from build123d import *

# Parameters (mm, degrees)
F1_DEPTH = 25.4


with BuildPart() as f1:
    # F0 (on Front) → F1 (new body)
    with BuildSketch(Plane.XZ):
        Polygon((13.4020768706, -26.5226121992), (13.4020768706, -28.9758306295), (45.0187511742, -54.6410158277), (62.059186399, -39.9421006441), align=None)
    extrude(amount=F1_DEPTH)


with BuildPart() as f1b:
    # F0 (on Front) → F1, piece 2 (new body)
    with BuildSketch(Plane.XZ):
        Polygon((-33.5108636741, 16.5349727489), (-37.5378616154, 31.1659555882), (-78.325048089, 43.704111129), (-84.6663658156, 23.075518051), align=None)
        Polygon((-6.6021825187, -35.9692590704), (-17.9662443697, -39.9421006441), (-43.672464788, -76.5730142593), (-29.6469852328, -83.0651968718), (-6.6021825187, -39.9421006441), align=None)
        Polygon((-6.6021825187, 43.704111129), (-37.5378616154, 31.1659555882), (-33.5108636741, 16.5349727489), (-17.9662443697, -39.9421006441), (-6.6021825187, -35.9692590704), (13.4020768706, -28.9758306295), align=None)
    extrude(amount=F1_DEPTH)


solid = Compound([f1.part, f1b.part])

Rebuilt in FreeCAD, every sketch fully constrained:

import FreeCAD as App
import Part
import Sketcher
from FreeCAD import Vector
Q = App.Units.Quantity


def add_polygon(sketch, points):
    """Adds a closed chain of lines whose ends are joined by coincident constraints."""
    first, n = sketch.GeometryCount, len(points)
    for a, b in zip(points, points[1:] + points[:1]):
        sketch.addGeometry(Part.LineSegment(App.Vector(*a, 0), App.Vector(*b, 0)), False)
    for i in range(n):
        sketch.addConstraint(Sketcher.Constraint("Coincident", first + i, 2, first + (i + 1) % n, 1))

doc = App.newDocument("Part")
body = doc.addObject("PartDesign::Body", "Body")

# Sketch on XZ plane
sketch1 = body.newObject("Sketcher::SketchObject", "Sketch")
sketch1.AttachmentSupport = (doc.getObject("XZ_Plane"), [""])
sketch1.MapMode = "FlatFace"
add_polygon(sketch1, [(13.4, -26.5), (13.4, -29), (45, -54.6), (62.1, -39.9)])  # lines 0-3
sketch1.addConstraint(Sketcher.Constraint("Vertical", 0))
sketch1.addConstraint(Sketcher.Constraint("Distance", 2, Q("22.504101 mm")))
sketch1.addConstraint(Sketcher.Constraint("DistanceY", 0, 2, 0, 1, Q("2.453218 mm")))
sketch1.addConstraint(Sketcher.Constraint("DistanceY", 2, 2, -1, 1, Q("39.942101 mm")))
sketch1.addConstraint(Sketcher.Constraint("DistanceY", 0, 2, -1, 1, Q("28.975831 mm")))
sketch1.addConstraint(Sketcher.Constraint("DistanceX", -1, 1, 1, 2, Q("45.018751 mm")))
sketch1.addConstraint(Sketcher.Constraint("DistanceX", 0, 2, 2, 2, Q("48.65711 mm")))
sketch1.addConstraint(Sketcher.Constraint("Distance", 1, Q("40.722424 mm")))
pad1 = body.newObject("PartDesign::Pad", "Pad")
pad1.Profile = sketch1
pad1.Length = Q("1 in")
body2 = doc.addObject("PartDesign::Body", "Body001")

# Sketch on XZ plane
sketch2 = body2.newObject("Sketcher::SketchObject", "Sketch001")
sketch2.AttachmentSupport = (doc.getObject("XZ_Plane001"), [""])
sketch2.MapMode = "FlatFace"
add_polygon(sketch2, [(-37.5, 31.2), (-78.3, 43.7), (-84.7, 23.1), (-33.5, 16.5), (-18, -39.9), (-43.7, -76.6), (-29.6, -83.1), (-6.6, -39.9), (-6.6, -36), (13.4, -29), (-6.6, 43.7)])  # lines 0-10
sketch2.addConstraint(Sketcher.Constraint("Vertical", 7))
sketch2.addConstraint(Sketcher.Constraint("Perpendicular", 0, 1))
sketch2.addConstraint(Sketcher.Constraint("Parallel", 3, 9))
sketch2.addConstraint(Sketcher.Constraint("Horizontal", 3, 2, 6, 2))
sketch2.addConstraint(Sketcher.Constraint("Horizontal", 0, 2, 9, 2))
sketch2.addConstraint(Sketcher.Constraint("Vertical", 7, 2, 9, 2))
sketch2.addConstraint(Sketcher.Constraint("DistanceY", 7, 1, 7, 2, Q("3.972842 mm")))
sketch2.addConstraint(Sketcher.Constraint("DistanceY", 3, 2, -1, 1, Q("39.942101 mm")))
sketch2.addConstraint(Sketcher.Constraint("DistanceX", 4, 2, 2, 2, Q("10.161601 mm")))
sketch2.addConstraint(Sketcher.Constraint("DistanceX", 1, 2, 4, 2, Q("40.993901 mm")))
sketch2.addConstraint(Sketcher.Constraint("Distance", 1, Q("21.581269 mm")))
sketch2.addConstraint(Sketcher.Constraint("Distance", 2, Q("51.571932 mm")))
sketch2.addConstraint(Sketcher.Constraint("Distance", 6, Q("48.894421 mm")))
sketch2.addConstraint(Sketcher.Constraint("Distance", 8, Q("21.191471 mm")))
sketch2.addConstraint(Sketcher.Constraint("DistanceX", 0, 2, -1, 1, Q("78.325048 mm")))
sketch2.addConstraint(Sketcher.Constraint("DistanceY", -1, 1, 0, 2, Q("43.704111 mm")))
sketch2.addConstraint(Sketcher.Constraint("DistanceY", -1, 1, 1, 2, Q("23.075518 mm")))
sketch2.addConstraint(Sketcher.Constraint("DistanceY", 8, 2, -1, 1, Q("28.975831 mm")))
sketch2.addConstraint(Sketcher.Constraint("DistanceX", 10, 2, -1, 1, Q("37.537862 mm")))
sketch2.addConstraint(Sketcher.Constraint("DistanceX", 4, 2, 5, 2, Q("14.02548 mm")))
sketch2.addConstraint(Sketcher.Constraint("DistanceY", 5, 2, 2, 2, Q("99.60017 mm")))
sketch2.addConstraint(Sketcher.Constraint("Distance", 4, Q("44.750794 mm")))
pad2 = body2.newObject("PartDesign::Pad", "Pad001")
pad2.Profile = sketch2
pad2.Length = Q("1 in")

doc.recompute()
